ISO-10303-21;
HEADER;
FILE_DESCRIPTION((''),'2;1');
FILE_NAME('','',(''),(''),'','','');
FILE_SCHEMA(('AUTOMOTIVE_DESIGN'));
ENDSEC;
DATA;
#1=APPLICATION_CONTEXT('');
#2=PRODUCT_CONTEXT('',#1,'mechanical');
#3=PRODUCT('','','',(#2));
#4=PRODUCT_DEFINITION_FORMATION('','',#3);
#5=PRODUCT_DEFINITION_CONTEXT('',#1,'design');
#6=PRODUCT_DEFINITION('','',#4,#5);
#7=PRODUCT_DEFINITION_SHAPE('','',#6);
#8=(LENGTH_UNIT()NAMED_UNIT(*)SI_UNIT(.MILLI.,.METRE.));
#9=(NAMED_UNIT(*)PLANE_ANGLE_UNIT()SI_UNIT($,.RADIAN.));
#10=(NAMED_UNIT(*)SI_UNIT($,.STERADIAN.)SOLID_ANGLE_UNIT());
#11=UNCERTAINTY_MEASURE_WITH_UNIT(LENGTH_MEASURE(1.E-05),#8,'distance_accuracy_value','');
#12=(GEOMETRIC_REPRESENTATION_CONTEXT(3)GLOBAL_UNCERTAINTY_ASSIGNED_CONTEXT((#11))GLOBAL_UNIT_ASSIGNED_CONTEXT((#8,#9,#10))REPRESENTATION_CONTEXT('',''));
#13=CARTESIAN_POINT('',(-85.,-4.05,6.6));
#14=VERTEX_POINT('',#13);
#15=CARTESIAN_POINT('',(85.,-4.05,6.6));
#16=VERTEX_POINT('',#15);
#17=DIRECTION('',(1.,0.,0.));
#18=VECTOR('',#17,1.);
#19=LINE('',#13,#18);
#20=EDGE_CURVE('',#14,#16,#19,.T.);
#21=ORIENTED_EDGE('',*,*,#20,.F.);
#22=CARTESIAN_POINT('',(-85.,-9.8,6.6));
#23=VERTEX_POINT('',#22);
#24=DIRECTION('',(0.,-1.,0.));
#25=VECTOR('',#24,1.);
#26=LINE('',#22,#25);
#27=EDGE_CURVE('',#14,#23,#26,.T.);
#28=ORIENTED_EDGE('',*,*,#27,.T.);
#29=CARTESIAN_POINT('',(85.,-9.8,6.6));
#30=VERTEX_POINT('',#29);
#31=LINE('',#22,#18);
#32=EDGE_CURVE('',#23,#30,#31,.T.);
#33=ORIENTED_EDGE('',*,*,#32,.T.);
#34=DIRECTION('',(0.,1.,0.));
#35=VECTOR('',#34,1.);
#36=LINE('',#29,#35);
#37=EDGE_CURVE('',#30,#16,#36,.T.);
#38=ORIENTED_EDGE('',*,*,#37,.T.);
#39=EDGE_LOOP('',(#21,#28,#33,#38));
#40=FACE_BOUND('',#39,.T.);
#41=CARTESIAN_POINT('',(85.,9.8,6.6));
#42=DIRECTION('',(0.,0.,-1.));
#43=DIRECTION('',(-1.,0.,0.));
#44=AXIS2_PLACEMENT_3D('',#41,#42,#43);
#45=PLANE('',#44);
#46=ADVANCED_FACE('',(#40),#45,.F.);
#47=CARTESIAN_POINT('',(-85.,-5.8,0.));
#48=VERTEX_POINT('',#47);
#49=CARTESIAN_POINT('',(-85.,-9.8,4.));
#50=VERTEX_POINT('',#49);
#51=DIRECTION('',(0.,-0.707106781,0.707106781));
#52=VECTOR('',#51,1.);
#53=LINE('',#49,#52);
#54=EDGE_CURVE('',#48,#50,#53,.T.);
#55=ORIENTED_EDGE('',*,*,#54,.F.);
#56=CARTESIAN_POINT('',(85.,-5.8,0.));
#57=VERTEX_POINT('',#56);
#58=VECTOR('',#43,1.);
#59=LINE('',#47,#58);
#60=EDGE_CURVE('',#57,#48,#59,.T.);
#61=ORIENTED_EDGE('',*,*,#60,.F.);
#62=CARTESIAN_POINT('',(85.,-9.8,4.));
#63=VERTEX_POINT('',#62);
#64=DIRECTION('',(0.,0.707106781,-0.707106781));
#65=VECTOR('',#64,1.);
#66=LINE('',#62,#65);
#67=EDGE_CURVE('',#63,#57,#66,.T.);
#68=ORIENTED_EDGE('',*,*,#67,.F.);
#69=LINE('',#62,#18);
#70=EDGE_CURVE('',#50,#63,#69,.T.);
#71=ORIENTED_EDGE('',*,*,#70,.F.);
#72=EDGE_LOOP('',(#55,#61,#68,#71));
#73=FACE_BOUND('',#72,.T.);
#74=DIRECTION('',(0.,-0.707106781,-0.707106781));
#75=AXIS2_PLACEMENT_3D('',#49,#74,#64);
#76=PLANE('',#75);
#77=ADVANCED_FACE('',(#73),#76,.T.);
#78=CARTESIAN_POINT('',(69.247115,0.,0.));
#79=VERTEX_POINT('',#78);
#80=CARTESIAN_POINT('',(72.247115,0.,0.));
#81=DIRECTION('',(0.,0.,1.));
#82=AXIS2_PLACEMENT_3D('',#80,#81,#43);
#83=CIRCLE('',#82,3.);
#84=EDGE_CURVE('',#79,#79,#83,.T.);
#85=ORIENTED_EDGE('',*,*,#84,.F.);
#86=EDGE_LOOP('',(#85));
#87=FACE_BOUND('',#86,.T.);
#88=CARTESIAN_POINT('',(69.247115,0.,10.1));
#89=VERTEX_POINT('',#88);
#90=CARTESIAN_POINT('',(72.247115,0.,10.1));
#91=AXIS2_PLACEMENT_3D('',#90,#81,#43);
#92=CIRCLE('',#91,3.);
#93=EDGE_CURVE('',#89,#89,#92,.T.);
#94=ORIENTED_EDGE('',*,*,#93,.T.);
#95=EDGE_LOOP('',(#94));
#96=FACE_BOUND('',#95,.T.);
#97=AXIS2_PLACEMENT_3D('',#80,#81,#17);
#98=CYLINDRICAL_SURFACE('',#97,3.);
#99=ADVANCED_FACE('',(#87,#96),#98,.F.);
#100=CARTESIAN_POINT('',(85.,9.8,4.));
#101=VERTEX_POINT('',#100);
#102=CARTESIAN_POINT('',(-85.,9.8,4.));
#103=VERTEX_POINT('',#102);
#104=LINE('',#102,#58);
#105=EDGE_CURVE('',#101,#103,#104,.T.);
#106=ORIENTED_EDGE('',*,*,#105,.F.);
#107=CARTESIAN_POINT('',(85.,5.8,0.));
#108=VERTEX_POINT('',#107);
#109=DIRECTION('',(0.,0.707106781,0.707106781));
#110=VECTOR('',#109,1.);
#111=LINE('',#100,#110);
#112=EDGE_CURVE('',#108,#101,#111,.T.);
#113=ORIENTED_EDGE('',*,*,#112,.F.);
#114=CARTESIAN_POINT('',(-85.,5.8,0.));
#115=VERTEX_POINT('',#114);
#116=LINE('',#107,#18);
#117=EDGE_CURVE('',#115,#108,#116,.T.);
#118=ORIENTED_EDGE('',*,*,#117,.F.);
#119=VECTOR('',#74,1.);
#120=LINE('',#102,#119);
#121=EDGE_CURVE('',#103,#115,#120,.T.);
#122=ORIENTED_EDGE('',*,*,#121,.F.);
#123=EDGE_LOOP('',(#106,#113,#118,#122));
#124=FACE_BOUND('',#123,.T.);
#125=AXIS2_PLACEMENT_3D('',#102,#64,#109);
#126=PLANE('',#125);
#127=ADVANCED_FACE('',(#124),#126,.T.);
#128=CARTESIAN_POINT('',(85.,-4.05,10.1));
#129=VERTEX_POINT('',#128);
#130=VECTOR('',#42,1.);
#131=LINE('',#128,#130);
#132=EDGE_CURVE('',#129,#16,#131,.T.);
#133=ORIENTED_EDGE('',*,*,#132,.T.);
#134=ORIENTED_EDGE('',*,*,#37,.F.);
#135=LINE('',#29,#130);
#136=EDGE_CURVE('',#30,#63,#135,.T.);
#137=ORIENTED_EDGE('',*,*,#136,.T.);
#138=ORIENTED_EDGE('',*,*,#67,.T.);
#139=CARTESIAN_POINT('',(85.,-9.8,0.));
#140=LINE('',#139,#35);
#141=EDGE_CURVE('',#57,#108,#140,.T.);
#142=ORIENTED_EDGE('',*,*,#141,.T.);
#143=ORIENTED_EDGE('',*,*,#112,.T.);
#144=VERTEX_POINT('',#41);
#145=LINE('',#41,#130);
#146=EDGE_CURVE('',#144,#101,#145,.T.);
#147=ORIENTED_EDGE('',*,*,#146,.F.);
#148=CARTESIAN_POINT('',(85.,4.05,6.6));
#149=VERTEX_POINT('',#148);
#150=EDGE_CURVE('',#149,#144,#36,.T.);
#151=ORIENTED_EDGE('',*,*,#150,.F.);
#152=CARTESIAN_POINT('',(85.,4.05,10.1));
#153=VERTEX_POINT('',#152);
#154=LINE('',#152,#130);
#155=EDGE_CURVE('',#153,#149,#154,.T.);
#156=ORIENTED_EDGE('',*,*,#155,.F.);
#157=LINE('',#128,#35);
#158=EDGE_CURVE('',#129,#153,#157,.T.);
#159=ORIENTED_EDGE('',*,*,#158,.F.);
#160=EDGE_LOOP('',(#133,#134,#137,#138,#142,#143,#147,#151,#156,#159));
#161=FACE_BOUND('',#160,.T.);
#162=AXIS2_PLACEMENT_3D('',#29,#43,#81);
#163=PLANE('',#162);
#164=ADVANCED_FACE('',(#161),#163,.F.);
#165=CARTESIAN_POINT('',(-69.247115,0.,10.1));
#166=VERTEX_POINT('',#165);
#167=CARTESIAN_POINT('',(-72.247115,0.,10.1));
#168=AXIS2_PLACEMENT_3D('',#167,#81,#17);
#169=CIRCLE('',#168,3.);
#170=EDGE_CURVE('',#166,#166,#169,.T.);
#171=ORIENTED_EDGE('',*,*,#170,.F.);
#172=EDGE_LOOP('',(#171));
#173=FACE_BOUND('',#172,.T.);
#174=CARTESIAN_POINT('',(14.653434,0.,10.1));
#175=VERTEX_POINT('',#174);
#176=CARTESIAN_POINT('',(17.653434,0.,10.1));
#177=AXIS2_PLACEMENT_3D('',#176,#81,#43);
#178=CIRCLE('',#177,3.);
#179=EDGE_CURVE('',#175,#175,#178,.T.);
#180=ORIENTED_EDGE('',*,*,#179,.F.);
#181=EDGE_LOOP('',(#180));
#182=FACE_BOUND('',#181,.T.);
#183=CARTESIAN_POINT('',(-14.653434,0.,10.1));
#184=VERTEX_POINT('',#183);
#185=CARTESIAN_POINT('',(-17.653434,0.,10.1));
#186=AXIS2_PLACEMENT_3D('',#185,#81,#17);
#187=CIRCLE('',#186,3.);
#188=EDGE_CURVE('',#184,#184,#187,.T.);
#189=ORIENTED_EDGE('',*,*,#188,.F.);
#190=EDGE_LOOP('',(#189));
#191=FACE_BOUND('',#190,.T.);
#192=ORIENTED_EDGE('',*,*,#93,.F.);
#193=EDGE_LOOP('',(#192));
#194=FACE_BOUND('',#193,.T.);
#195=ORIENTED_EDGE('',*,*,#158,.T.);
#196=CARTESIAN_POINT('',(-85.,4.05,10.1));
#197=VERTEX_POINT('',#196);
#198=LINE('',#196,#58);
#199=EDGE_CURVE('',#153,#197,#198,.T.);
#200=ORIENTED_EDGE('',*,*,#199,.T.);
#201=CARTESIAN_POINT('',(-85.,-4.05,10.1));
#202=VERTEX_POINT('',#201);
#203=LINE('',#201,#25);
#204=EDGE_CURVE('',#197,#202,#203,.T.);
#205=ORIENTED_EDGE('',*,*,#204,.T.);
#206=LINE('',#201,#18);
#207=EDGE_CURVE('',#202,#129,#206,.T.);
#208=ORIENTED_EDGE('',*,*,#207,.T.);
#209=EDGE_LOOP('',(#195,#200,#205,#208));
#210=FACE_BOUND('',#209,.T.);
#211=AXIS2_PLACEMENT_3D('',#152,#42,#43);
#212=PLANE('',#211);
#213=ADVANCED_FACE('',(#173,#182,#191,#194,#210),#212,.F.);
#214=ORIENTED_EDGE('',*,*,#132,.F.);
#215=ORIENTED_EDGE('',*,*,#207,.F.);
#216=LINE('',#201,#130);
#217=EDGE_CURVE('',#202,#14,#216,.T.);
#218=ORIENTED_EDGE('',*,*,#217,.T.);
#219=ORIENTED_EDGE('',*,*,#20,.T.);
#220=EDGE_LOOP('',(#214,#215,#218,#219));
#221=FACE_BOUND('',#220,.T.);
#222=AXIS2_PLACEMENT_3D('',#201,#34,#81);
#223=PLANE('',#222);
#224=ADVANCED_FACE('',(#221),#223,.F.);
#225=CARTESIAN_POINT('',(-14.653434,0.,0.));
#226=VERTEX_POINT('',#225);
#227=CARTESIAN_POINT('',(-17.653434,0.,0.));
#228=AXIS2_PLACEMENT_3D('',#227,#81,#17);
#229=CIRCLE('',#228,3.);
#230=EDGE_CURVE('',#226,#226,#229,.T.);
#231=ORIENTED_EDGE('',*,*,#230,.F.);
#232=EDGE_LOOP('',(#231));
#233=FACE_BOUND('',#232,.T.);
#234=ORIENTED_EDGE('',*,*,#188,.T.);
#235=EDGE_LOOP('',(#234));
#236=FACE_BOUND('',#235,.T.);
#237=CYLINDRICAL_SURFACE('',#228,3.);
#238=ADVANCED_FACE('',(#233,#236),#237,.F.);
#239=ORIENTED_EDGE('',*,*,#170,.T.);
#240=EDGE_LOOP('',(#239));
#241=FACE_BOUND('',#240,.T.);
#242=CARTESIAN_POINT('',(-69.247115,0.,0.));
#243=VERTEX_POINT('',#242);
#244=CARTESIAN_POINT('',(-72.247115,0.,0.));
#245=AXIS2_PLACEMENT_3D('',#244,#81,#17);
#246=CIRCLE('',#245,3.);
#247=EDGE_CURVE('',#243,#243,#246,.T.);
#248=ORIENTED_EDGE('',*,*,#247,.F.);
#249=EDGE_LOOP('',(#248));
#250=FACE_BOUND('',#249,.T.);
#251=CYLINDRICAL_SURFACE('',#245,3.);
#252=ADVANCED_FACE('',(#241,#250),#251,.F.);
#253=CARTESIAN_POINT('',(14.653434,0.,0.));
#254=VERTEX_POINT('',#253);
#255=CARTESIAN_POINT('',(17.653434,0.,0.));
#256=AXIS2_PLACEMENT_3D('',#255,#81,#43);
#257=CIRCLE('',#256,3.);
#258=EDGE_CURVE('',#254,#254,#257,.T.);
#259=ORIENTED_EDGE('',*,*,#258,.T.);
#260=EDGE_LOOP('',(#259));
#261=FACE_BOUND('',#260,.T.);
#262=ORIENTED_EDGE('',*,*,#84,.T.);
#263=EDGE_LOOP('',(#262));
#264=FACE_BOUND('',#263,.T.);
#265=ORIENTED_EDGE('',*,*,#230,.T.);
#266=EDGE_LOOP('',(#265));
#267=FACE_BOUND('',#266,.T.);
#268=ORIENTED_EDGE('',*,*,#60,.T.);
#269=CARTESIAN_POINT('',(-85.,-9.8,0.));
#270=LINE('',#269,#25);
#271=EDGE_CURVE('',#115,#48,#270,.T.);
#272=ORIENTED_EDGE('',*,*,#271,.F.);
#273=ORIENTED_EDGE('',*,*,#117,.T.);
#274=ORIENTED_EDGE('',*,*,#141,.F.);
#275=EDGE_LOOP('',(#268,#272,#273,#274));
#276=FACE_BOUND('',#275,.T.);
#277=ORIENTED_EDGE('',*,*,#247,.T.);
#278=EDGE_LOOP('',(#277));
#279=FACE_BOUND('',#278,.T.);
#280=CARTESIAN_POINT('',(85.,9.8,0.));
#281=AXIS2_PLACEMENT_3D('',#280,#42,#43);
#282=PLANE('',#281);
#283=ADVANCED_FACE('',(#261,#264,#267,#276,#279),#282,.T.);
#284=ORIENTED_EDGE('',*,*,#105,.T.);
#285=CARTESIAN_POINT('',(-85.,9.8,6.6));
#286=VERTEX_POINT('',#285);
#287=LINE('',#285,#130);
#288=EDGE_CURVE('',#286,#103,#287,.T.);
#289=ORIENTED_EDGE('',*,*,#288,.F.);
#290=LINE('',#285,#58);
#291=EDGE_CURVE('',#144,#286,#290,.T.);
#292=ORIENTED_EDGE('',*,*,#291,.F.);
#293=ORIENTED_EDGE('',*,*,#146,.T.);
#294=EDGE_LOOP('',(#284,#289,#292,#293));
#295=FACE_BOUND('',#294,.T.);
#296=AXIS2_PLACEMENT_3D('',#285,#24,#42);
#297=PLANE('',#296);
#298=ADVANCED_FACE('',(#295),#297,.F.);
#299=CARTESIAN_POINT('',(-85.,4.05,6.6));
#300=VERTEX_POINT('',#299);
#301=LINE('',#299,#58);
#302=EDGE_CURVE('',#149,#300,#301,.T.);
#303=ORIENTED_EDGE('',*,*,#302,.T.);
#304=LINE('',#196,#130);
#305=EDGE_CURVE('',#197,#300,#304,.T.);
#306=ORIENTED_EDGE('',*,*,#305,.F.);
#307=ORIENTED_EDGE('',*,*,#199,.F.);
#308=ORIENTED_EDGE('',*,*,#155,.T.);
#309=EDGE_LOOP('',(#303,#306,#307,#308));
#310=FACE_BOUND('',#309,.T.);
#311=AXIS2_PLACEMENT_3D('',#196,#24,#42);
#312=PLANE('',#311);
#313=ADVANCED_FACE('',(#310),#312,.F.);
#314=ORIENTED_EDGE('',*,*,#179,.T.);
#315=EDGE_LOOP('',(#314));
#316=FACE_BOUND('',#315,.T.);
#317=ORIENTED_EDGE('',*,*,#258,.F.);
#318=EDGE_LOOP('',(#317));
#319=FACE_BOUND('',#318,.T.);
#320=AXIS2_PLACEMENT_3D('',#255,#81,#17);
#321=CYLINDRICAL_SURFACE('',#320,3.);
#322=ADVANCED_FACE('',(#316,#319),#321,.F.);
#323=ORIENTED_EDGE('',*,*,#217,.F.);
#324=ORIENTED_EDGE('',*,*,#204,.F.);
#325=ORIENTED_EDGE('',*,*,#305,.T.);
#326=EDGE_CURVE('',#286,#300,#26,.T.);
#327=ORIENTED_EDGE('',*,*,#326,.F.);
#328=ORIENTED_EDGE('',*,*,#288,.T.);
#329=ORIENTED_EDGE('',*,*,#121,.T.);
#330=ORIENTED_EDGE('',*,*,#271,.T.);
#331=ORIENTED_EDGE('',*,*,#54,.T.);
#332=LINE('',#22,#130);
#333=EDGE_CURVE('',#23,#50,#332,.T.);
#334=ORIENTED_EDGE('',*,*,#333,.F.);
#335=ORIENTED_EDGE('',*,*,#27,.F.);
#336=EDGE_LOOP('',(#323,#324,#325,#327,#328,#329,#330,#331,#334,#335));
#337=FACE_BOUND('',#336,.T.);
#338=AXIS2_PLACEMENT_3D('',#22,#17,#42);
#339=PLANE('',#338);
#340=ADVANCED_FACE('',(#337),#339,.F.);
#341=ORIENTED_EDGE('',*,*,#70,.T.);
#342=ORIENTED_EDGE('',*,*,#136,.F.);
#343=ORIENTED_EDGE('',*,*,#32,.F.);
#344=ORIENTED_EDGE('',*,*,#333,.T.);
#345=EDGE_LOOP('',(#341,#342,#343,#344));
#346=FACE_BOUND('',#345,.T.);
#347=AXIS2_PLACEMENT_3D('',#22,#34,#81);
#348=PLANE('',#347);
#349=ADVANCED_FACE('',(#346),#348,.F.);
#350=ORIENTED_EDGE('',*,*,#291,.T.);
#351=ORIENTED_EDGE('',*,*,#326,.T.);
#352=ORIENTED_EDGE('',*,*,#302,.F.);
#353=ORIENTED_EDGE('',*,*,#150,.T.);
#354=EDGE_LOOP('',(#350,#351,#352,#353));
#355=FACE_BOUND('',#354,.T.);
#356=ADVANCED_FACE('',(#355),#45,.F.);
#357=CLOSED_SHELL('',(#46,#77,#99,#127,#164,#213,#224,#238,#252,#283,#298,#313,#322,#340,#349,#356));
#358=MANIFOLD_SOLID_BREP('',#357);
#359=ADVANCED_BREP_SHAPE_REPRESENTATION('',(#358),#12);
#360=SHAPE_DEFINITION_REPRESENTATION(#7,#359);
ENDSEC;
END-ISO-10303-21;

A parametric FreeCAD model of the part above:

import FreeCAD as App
import Part
import Sketcher


def edges_at(feature, points):
    """Names of the edges that pass closest to the given points."""
    edges = feature.Shape.Edges
    near = lambda p: min(range(len(edges)), key=lambda i: edges[i].distToShape(Part.Vertex(*p))[0])
    return sorted({f"Edge{near(p) + 1}" for p in points})


def add_polygon(sketch, points):
    """Adds a closed chain of lines whose ends are joined by coincident constraints."""
    first, n = sketch.GeometryCount, len(points)
    for a, b in zip(points, points[1:] + points[:1]):
        sketch.addGeometry(Part.LineSegment(App.Vector(*a, 0), App.Vector(*b, 0)), False)
    for i in range(n):
        sketch.addConstraint(Sketcher.Constraint("Coincident", first + i, 2, first + (i + 1) % n, 1))

doc = App.newDocument("Part")
body = doc.addObject("PartDesign::Body", "Body")

# Sketch on XY plane
sketch1 = body.newObject("Sketcher::SketchObject", "Sketch")
sketch1.AttachmentSupport = (doc.getObject("XY_Plane"), [""])
sketch1.MapMode = "FlatFace"
add_polygon(sketch1, [(-85, 9.8), (-85, -9.8), (85, -9.8), (85, 9.8)])  # lines 0-3
sketch1.addConstraint(Sketcher.Constraint("Vertical", 0))
sketch1.addConstraint(Sketcher.Constraint("Horizontal", 1))
sketch1.addConstraint(Sketcher.Constraint("Vertical", 2))
sketch1.addConstraint(Sketcher.Constraint("Horizontal", 3))
sketch1.addConstraint(Sketcher.Constraint("Symmetric", 0, 2, 2, 2, -1, 1))
sketch1.addConstraint(Sketcher.Constraint("DistanceX", 1, 1, 1, 2, 170.0))
sketch1.addConstraint(Sketcher.Constraint("DistanceY", 0, 2, 0, 1, 19.6))
pad1 = body.newObject("PartDesign::Pad", "Pad")
pad1.Profile = sketch1
pad1.Length = 6.6

# Sketch on XY plane
sketch2 = body.newObject("Sketcher::SketchObject", "Sketch001")
sketch2.AttachmentSupport = (doc.getObject("XY_Plane"), [""])
sketch2.MapMode = "FlatFace"
sketch2.AttachmentOffset = App.Placement(App.Vector(0, 0, 6.6), App.Rotation())
add_polygon(sketch2, [(-85, 4.05), (-85, -4.05), (85, -4.05), (85, 4.05)])  # lines 0-3
sketch2.addConstraint(Sketcher.Constraint("Vertical", 0))
sketch2.addConstraint(Sketcher.Constraint("Horizontal", 1))
sketch2.addConstraint(Sketcher.Constraint("Vertical", 2))
sketch2.addConstraint(Sketcher.Constraint("Horizontal", 3))
sketch2.addConstraint(Sketcher.Constraint("Symmetric", 0, 2, 2, 2, -1, 1))
sketch2.addConstraint(Sketcher.Constraint("DistanceX", 1, 1, 1, 2, 170.0))
sketch2.addConstraint(Sketcher.Constraint("DistanceY", 0, 2, 0, 1, 8.1))
pad2 = body.newObject("PartDesign::Pad", "Pad001")
pad2.Profile = sketch2
pad2.Length = 3.5

# Sketch on XY plane
sketch3 = body.newObject("Sketcher::SketchObject", "Sketch002")
sketch3.AttachmentSupport = (doc.getObject("XY_Plane"), [""])
sketch3.MapMode = "FlatFace"
sketch3.AttachmentOffset = App.Placement(App.Vector(0, 0, 10.1), App.Rotation())
sketch3.addGeometry(Part.Circle(App.Vector(-72.247115, 0, 0), App.Vector(0, 0, 1), 3), False)
sketch3.addGeometry(Part.Circle(App.Vector(-17.653434, 0, 0), App.Vector(0, 0, 1), 3), False)
sketch3.addGeometry(Part.Circle(App.Vector(17.653434, 0, 0), App.Vector(0, 0, 1), 3), False)
sketch3.addGeometry(Part.Circle(App.Vector(72.247115, 0, 0), App.Vector(0, 0, 1), 3), False)
sketch3.addConstraint(Sketcher.Constraint("Equal", 0, 1))
sketch3.addConstraint(Sketcher.Constraint("Equal", 1, 2))
sketch3.addConstraint(Sketcher.Constraint("Equal", 2, 3))
sketch3.addConstraint(Sketcher.Constraint("Symmetric", 1, 3, 2, 3, -1, 1))
sketch3.addConstraint(Sketcher.Constraint("Symmetric", 0, 3, 3, 3, -1, 1))
sketch3.addConstraint(Sketcher.Constraint("PointOnObject", 0, 3, -1))
sketch3.addConstraint(Sketcher.Constraint("PointOnObject", 1, 3, -1))
sketch3.addConstraint(Sketcher.Constraint("Diameter", 0, 6.0))
sketch3.addConstraint(Sketcher.Constraint("DistanceX", 0, 3, 1, 3, 54.593681))
sketch3.addConstraint(Sketcher.Constraint("DistanceX", 1, 3, 2, 3, 35.306868))
pocket1 = body.newObject("PartDesign::Pocket", "Pocket")
pocket1.Profile = sketch3
pocket1.Type = "ThroughAll"
doc.recompute()

chamfer = body.newObject("PartDesign::Chamfer", "Chamfer")
chamfer.Base = (pocket1, edges_at(pocket1, [(0, -9.8, 0), (0, 9.8, 0)]))
chamfer.Size = 4

doc.recompute()
